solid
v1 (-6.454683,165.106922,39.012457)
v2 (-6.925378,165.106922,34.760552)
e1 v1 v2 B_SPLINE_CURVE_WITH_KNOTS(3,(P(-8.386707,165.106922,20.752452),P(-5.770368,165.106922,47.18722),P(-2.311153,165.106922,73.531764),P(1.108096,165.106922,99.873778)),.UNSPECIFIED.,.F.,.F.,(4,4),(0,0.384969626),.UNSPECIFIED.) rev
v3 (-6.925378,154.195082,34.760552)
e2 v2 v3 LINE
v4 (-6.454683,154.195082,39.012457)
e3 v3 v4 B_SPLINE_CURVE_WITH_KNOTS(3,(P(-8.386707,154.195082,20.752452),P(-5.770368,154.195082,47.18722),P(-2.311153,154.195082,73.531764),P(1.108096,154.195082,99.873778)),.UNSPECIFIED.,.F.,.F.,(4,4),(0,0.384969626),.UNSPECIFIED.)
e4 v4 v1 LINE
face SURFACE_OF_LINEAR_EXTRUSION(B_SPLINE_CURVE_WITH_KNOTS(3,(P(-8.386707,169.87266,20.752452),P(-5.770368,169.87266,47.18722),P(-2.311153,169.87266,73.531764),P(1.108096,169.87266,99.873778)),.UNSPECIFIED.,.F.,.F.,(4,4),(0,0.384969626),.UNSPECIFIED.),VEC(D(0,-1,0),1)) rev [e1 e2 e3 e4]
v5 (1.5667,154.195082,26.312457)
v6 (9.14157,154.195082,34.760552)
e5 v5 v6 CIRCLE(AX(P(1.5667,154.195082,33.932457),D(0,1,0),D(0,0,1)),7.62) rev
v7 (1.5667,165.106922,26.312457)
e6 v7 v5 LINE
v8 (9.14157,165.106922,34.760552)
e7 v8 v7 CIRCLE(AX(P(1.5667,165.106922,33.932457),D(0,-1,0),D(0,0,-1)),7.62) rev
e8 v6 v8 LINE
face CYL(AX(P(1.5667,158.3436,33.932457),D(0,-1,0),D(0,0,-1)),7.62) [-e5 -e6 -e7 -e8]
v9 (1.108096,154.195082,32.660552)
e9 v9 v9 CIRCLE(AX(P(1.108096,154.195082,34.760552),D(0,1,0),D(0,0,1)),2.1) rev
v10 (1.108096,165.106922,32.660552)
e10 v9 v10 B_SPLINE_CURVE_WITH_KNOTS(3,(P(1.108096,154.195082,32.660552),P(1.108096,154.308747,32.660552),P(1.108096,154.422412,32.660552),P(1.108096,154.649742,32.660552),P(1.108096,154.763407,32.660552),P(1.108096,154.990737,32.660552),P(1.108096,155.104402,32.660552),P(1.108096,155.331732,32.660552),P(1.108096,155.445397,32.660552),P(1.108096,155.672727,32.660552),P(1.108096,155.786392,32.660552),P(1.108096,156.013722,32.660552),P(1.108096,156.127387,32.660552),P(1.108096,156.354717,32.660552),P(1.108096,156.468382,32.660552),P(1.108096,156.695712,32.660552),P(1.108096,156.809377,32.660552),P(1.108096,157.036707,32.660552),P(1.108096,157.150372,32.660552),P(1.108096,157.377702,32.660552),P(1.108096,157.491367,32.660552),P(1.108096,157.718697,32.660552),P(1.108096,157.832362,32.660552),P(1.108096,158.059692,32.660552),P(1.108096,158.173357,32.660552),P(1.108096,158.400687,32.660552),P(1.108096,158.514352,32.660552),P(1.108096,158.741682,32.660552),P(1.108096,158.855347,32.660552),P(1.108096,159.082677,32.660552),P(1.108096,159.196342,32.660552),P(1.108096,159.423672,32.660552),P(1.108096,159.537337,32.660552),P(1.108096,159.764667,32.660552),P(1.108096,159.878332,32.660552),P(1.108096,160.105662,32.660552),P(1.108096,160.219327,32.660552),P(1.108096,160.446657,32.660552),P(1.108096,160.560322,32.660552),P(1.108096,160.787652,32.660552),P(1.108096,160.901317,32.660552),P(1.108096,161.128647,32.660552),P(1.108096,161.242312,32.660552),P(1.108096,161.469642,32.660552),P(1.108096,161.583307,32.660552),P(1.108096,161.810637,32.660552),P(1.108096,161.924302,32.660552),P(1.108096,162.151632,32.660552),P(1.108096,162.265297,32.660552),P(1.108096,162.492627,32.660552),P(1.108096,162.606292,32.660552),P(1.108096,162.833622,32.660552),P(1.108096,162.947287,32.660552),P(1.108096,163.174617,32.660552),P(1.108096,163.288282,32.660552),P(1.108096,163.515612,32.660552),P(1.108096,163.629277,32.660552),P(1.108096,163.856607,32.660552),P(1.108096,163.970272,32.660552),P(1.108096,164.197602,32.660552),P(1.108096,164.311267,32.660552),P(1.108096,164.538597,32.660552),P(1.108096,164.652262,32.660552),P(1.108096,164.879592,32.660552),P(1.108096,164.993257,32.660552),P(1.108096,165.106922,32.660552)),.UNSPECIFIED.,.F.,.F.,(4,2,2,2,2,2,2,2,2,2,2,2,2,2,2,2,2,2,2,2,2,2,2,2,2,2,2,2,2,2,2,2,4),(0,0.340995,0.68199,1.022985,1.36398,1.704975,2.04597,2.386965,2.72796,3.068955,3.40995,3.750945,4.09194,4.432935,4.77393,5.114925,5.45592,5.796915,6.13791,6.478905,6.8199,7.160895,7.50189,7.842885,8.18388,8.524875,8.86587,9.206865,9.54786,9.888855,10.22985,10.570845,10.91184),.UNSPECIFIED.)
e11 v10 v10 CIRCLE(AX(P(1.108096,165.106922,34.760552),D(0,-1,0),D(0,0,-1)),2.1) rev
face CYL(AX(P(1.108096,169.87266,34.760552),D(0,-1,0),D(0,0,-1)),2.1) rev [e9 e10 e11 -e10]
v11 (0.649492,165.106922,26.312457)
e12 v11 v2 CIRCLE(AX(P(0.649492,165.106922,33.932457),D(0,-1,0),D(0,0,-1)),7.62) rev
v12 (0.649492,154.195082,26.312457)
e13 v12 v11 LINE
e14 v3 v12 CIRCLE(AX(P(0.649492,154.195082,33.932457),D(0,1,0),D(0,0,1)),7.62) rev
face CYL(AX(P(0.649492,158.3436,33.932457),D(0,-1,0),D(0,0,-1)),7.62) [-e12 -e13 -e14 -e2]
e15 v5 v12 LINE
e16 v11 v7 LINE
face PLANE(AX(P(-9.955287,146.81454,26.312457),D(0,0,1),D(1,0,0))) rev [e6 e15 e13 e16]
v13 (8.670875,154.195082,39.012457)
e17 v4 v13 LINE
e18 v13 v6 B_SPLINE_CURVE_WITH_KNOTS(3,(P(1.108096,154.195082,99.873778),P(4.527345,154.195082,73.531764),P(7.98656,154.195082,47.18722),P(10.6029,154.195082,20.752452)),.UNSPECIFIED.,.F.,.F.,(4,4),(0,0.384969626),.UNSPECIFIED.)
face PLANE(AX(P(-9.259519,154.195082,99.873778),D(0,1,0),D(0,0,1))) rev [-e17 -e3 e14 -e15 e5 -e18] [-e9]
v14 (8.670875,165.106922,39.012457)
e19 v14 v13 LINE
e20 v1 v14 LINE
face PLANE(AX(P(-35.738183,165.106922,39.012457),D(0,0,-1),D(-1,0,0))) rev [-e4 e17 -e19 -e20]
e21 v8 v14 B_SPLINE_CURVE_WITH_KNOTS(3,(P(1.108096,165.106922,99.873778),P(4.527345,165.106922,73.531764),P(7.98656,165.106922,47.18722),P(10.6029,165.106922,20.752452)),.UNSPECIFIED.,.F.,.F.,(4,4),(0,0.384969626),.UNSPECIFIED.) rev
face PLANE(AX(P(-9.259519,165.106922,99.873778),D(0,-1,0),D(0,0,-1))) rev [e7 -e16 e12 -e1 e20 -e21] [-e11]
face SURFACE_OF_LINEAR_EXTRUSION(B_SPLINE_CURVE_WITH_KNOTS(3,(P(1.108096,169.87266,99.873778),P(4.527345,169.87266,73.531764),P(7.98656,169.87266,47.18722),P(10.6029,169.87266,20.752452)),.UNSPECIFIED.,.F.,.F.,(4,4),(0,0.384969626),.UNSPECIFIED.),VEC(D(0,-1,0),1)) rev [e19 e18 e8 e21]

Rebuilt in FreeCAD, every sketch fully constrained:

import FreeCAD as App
import Part
import Sketcher
from FreeCAD import Vector
Q = App.Units.Quantity


def edges_at(feature, points):
    """Names of the edges that pass closest to the given points."""
    edges = feature.Shape.Edges
    near = lambda p: min(range(len(edges)), key=lambda i: edges[i].distToShape(Part.Vertex(*p))[0])
    return sorted({f"Edge{near(p) + 1}" for p in points})

doc = App.newDocument("Part")
body = doc.addObject("PartDesign::Body", "Body")

sketch1 = body.newObject("Sketcher::SketchObject", "Sketch")
sketch1.AttachmentSupport = (doc.getObject("XZ_Plane"), [""])
sketch1.MapMode = "FlatFace"
sketch1.addGeometry(Part.LineSegment(Vector(12.17148, 3.607452, 0), Vector(-9.955287, 3.607452, 0)), False)
sketch1.addGeometry(Part.BSplineCurve([Vector(-8.386707, 20.752452, 0), Vector(-8.883777, 15.730202, 0), Vector(-9.414371, 10.016003, 0), Vector(-9.897806, 4.296817, 0), Vector(-9.955287, 3.607452, 0)], [4, 1, 4], [0.384969626, 0.458108671, 0.468131593], False, 3, [1, 1, 1, 1, 1], False), False)
sketch1.addGeometry(Part.BSplineCurve([Vector(1.108096, 99.873778, 0), Vector(-2.311153, 73.531764, 0), Vector(-5.770368, 47.18722, 0), Vector(-8.386707, 20.752452, 0)], [4, 4], [0, 0.384969626], False, 3, [1, 1, 1, 1], False), False)
sketch1.addGeometry(Part.BSplineCurve([Vector(1.108096, 99.873778, 0), Vector(4.527345, 73.531764, 0), Vector(7.98656, 47.18722, 0), Vector(10.6029, 20.752452, 0)], [4, 4], [0, 0.384969626], False, 3, [1, 1, 1, 1], False), False)
sketch1.addGeometry(Part.BSplineCurve([Vector(10.6029, 20.752452, 0), Vector(11.099969, 15.730202, 0), Vector(11.630564, 10.016003, 0), Vector(12.113998, 4.296817, 0), Vector(12.17148, 3.607452, 0)], [4, 1, 4], [0.384969626, 0.458108671, 0.468131593], False, 3, [1, 1, 1, 1, 1], False), False)
sketch1.addGeometry(Part.Circle(Vector(1.108109, 11.326457, 0), Vector(0, 0, 1), 1.984375), False)
sketch1.addConstraint(Sketcher.Constraint("Block", 1))
sketch1.addConstraint(Sketcher.Constraint("Block", 2))
sketch1.addConstraint(Sketcher.Constraint("Block", 3))
sketch1.addConstraint(Sketcher.Constraint("Block", 4))
sketch1.addConstraint(Sketcher.Constraint("Coincident", 0, 2, 1, 2))
sketch1.addConstraint(Sketcher.Constraint("Coincident", 4, 2, 0, 1))
sketch1.addConstraint(Sketcher.Constraint("Diameter", 5, Q("0.15625 in")))
sketch1.addConstraint(Sketcher.Constraint("DistanceX", -1, 1, 5, 3, Q("1.108109 mm")))
sketch1.addConstraint(Sketcher.Constraint("DistanceY", -1, 1, 5, 3, Q("11.326457 mm")))
pad1 = body.newObject("PartDesign::Pad", "Pad")
pad1.Profile = sketch1
pad1.Length = Q("6.6879 in")
pad1.Reversed = True

sketch2 = body.newObject("Sketcher::SketchObject", "Sketch001")
sketch2.AttachmentSupport = (doc.getObject("XZ_Plane"), [""])
sketch2.MapMode = "FlatFace"
sketch2.AttachmentOffset = App.Placement(Vector(0, 0, -6.6879 * 25.4), App.Rotation())
sketch2.addGeometry(Part.LineSegment(Vector(-10, 4, 0), Vector(-10, 26, 0)), False)
sketch2.addGeometry(Part.LineSegment(Vector(-10, 26, 0), Vector(26, 26, 0)), False)
sketch2.addGeometry(Part.LineSegment(Vector(26, 26, 0), Vector(26, 4, 0)), False)
sketch2.addGeometry(Part.LineSegment(Vector(26, 4, 0), Vector(-10, 4, 0)), False)
sketch2.addConstraint(Sketcher.Constraint("Coincident", 0, 2, 1, 1))
sketch2.addConstraint(Sketcher.Constraint("Coincident", 1, 2, 2, 1))
sketch2.addConstraint(Sketcher.Constraint("Coincident", 2, 2, 3, 1))
sketch2.addConstraint(Sketcher.Constraint("Coincident", 3, 2, 0, 1))
sketch2.addConstraint(Sketcher.Constraint("Vertical", 0))
sketch2.addConstraint(Sketcher.Constraint("Horizontal", 1))
sketch2.addConstraint(Sketcher.Constraint("Vertical", 2))
sketch2.addConstraint(Sketcher.Constraint("Horizontal", 3))
sketch2.addConstraint(Sketcher.Constraint("DistanceX", 1, 1, 1, 2, Q("35.763807 mm")))
sketch2.addConstraint(Sketcher.Constraint("DistanceY", 0, 1, 0, 2, Q("22.705005 mm")))
sketch2.addConstraint(Sketcher.Constraint("DistanceX", -1, 1, 1, 2, Q("25.80852 mm")))
sketch2.addConstraint(Sketcher.Constraint("DistanceY", -1, 1, 2, 2, Q("3.607452 mm")))
pocket1 = body.newObject("PartDesign::Pocket", "Pocket")
pocket1.Profile = sketch2
pocket1.Length = Q("0.9078 in")
pocket1.Reversed = True

sketch3 = body.newObject("Sketcher::SketchObject", "Sketch002")
sketch3.AttachmentSupport = (doc.getObject("XZ_Plane"), [""])
sketch3.MapMode = "FlatFace"
sketch3.addGeometry(Part.LineSegment(Vector(-10, 4, 0), Vector(-10, 26, 0)), False)
sketch3.addGeometry(Part.LineSegment(Vector(-10, 26, 0), Vector(26, 26, 0)), False)
sketch3.addGeometry(Part.LineSegment(Vector(26, 26, 0), Vector(26, 4, 0)), False)
sketch3.addGeometry(Part.LineSegment(Vector(26, 4, 0), Vector(-10, 4, 0)), False)
sketch3.addConstraint(Sketcher.Constraint("Coincident", 0, 2, 1, 1))
sketch3.addConstraint(Sketcher.Constraint("Coincident", 1, 2, 2, 1))
sketch3.addConstraint(Sketcher.Constraint("Coincident", 2, 2, 3, 1))
sketch3.addConstraint(Sketcher.Constraint("Coincident", 3, 2, 0, 1))
sketch3.addConstraint(Sketcher.Constraint("Vertical", 0))
sketch3.addConstraint(Sketcher.Constraint("Horizontal", 1))
sketch3.addConstraint(Sketcher.Constraint("Vertical", 2))
sketch3.addConstraint(Sketcher.Constraint("Horizontal", 3))
sketch3.addConstraint(Sketcher.Constraint("DistanceX", 1, 1, 1, 2, Q("35.763807 mm")))
sketch3.addConstraint(Sketcher.Constraint("DistanceY", 0, 1, 0, 2, Q("22.705005 mm")))
sketch3.addConstraint(Sketcher.Constraint("DistanceX", -1, 1, 1, 2, Q("25.80852 mm")))
sketch3.addConstraint(Sketcher.Constraint("DistanceY", -1, 1, 2, 2, Q("3.607452 mm")))
pocket2 = body.newObject("PartDesign::Pocket", "Pocket001")
pocket2.Profile = sketch3
pocket2.Length = Q("0.9078 in")
doc.recompute()

fillet = body.newObject("PartDesign::Fillet", "Fillet")
fillet.Base = (pocket2, edges_at(pocket2, [
    (-7.824, 11.529, 26.312),
    (10.04, 11.529, 26.312),
    (-9.955, 84.936, 3.607),
    (12.171, 84.936, 3.607),
    (-7.824, 158.344, 26.312),
    (10.04, 158.344, 26.312),
]))
fillet.Radius = Q("0.3 in")

sketch4 = body.newObject("Sketcher::SketchObject", "Sketch003")
sketch4.AttachmentSupport = (doc.getObject("XZ_Plane"), [""])
sketch4.MapMode = "FlatFace"
sketch4.addGeometry(Part.Circle(Vector(1.1, 71.9, 0), Vector(0, 0, 1), 2.1), False)
sketch4.addGeometry(Part.Circle(Vector(1.1, 34.8, 0), Vector(0, 0, 1), 2.1), False)
sketch4.addConstraint(Sketcher.Constraint("Equal", 0, 1))
sketch4.addConstraint(Sketcher.Constraint("Vertical", 0, 3, 1, 3))
sketch4.addConstraint(Sketcher.Constraint("Diameter", 0, Q("4.2 mm")))
sketch4.addConstraint(Sketcher.Constraint("DistanceY", -1, 1, 0, 3, Q("71.933778 mm")))
sketch4.addConstraint(Sketcher.Constraint("DistanceX", -1, 1, 0, 3, Q("1.108096 mm")))
sketch4.addConstraint(Sketcher.Constraint("DistanceY", -1, 1, 1, 3, Q("34.760552 mm")))
pocket3 = body.newObject("PartDesign::Pocket", "Pocket002")
pocket3.Profile = sketch4
pocket3.Type = "ThroughAll"
pocket3.Midplane = True

sketch5 = body.newObject("Sketcher::SketchObject", "Sketch004")
sketch5.AttachmentSupport = (doc.getObject("YZ_Plane"), [""])
sketch5.MapMode = "FlatFace"
sketch5.addGeometry(Part.LineSegment(Vector(154.2, 99.9, 0), Vector(0, 99.9, 0)), False)
sketch5.addGeometry(Part.LineSegment(Vector(0, 99.9, 0), Vector(0, 3.6, 0)), False)
sketch5.addGeometry(Part.LineSegment(Vector(0, 3.6, 0), Vector(154.2, 3.6, 0)), False)
sketch5.addGeometry(Part.LineSegment(Vector(154.2, 3.6, 0), Vector(154.2, 99.9, 0)), False)
sketch5.addGeometry(Part.LineSegment(Vector(169.9, 99.9, 0), Vector(165.1, 99.9, 0)), False)
sketch5.addGeometry(Part.LineSegment(Vector(165.1, 99.9, 0), Vector(165.1, 3.6, 0)), False)
sketch5.addGeometry(Part.LineSegment(Vector(165.1, 3.6, 0), Vector(169.9, 3.6, 0)), False)
sketch5.addGeometry(Part.LineSegment(Vector(169.9, 3.6, 0), Vector(169.9, 99.9, 0)), False)
sketch5.addConstraint(Sketcher.Constraint("Coincident", 0, 2, 1, 1))
sketch5.addConstraint(Sketcher.Constraint("Coincident", 1, 2, 2, 1))
sketch5.addConstraint(Sketcher.Constraint("Coincident", 2, 2, 3, 1))
sketch5.addConstraint(Sketcher.Constraint("Coincident", 3, 2, 0, 1))
sketch5.addConstraint(Sketcher.Constraint("Coincident", 4, 2, 5, 1))
sketch5.addConstraint(Sketcher.Constraint("Coincident", 5, 2, 6, 1))
sketch5.addConstraint(Sketcher.Constraint("Coincident", 6, 2, 7, 1))
sketch5.addConstraint(Sketcher.Constraint("Coincident", 7, 2, 4, 1))
sketch5.addConstraint(Sketcher.Constraint("Horizontal", 0))
sketch5.addConstraint(Sketcher.Constraint("Vertical", 1))
sketch5.addConstraint(Sketcher.Constraint("Horizontal", 2))
sketch5.addConstraint(Sketcher.Constraint("Vertical", 3))
sketch5.addConstraint(Sketcher.Constraint("Horizontal", 4))
sketch5.addConstraint(Sketcher.Constraint("Vertical", 5))
sketch5.addConstraint(Sketcher.Constraint("Horizontal", 6))
sketch5.addConstraint(Sketcher.Constraint("Vertical", 7))
sketch5.addConstraint(Sketcher.Constraint("PointOnObject", 0, 2, -2))
sketch5.addConstraint(Sketcher.Constraint("Horizontal", 3, 2, 4, 2))
sketch5.addConstraint(Sketcher.Constraint("Horizontal", 2, 2, 5, 2))
sketch5.addConstraint(Sketcher.Constraint("DistanceX", -1, 1, 6, 2, Q("6.6879 in")))
sketch5.addConstraint(Sketcher.Constraint("DistanceX", 3, 2, 4, 2, Q("0.4296 in")))
sketch5.addConstraint(Sketcher.Constraint("DistanceX", 0, 2, 0, 1, Q("154.195082 mm")))
sketch5.addConstraint(Sketcher.Constraint("DistanceY", 1, 2, 1, 1, Q("96.266327 mm")))
sketch5.addConstraint(Sketcher.Constraint("DistanceY", -1, 1, 0, 2, Q("99.873778 mm")))
pocket4 = body.newObject("PartDesign::Pocket", "Pocket003")
pocket4.Profile = sketch5
pocket4.Type = "ThroughAll"
pocket4.Midplane = True

sketch6 = body.newObject("Sketcher::SketchObject", "Sketch005")
sketch6.AttachmentSupport = (doc.getObject("XZ_Plane"), [""])
sketch6.MapMode = "FlatFace"
sketch6.AttachmentOffset = App.Placement(Vector(0, 0, -154.195082), App.Rotation())
sketch6.addGeometry(Part.LineSegment(Vector(-36, 104, 0), Vector(-36, 39, 0)), False)
sketch6.addGeometry(Part.LineSegment(Vector(-36, 39, 0), Vector(20, 39, 0)), False)
sketch6.addGeometry(Part.LineSegment(Vector(20, 39, 0), Vector(20, 104, 0)), False)
sketch6.addGeometry(Part.LineSegment(Vector(20, 104, 0), Vector(-36, 104, 0)), False)
sketch6.addConstraint(Sketcher.Constraint("Coincident", 0, 2, 1, 1))
sketch6.addConstraint(Sketcher.Constraint("Coincident", 1, 2, 2, 1))
sketch6.addConstraint(Sketcher.Constraint("Coincident", 2, 2, 3, 1))
sketch6.addConstraint(Sketcher.Constraint("Coincident", 3, 2, 0, 1))
sketch6.addConstraint(Sketcher.Constraint("Vertical", 0))
sketch6.addConstraint(Sketcher.Constraint("Horizontal", 1))
sketch6.addConstraint(Sketcher.Constraint("Vertical", 2))
sketch6.addConstraint(Sketcher.Constraint("Horizontal", 3))
sketch6.addConstraint(Sketcher.Constraint("DistanceX", -1, 1, 1, 2, Q("0.7714998 in")))
sketch6.addConstraint(Sketcher.Constraint("DistanceX", 1, 1, 1, 2, Q("55.334279 mm")))
sketch6.addConstraint(Sketcher.Constraint("DistanceY", 0, 2, 0, 1, Q("64.985106 mm")))
sketch6.addConstraint(Sketcher.Constraint("DistanceY", -1, 1, 0, 2, Q("39.012457 mm")))
pocket5 = body.newObject("PartDesign::Pocket", "Pocket004")
pocket5.Profile = sketch6
pocket5.Type = "ThroughAll"
pocket5.Midplane = True

doc.recompute()
